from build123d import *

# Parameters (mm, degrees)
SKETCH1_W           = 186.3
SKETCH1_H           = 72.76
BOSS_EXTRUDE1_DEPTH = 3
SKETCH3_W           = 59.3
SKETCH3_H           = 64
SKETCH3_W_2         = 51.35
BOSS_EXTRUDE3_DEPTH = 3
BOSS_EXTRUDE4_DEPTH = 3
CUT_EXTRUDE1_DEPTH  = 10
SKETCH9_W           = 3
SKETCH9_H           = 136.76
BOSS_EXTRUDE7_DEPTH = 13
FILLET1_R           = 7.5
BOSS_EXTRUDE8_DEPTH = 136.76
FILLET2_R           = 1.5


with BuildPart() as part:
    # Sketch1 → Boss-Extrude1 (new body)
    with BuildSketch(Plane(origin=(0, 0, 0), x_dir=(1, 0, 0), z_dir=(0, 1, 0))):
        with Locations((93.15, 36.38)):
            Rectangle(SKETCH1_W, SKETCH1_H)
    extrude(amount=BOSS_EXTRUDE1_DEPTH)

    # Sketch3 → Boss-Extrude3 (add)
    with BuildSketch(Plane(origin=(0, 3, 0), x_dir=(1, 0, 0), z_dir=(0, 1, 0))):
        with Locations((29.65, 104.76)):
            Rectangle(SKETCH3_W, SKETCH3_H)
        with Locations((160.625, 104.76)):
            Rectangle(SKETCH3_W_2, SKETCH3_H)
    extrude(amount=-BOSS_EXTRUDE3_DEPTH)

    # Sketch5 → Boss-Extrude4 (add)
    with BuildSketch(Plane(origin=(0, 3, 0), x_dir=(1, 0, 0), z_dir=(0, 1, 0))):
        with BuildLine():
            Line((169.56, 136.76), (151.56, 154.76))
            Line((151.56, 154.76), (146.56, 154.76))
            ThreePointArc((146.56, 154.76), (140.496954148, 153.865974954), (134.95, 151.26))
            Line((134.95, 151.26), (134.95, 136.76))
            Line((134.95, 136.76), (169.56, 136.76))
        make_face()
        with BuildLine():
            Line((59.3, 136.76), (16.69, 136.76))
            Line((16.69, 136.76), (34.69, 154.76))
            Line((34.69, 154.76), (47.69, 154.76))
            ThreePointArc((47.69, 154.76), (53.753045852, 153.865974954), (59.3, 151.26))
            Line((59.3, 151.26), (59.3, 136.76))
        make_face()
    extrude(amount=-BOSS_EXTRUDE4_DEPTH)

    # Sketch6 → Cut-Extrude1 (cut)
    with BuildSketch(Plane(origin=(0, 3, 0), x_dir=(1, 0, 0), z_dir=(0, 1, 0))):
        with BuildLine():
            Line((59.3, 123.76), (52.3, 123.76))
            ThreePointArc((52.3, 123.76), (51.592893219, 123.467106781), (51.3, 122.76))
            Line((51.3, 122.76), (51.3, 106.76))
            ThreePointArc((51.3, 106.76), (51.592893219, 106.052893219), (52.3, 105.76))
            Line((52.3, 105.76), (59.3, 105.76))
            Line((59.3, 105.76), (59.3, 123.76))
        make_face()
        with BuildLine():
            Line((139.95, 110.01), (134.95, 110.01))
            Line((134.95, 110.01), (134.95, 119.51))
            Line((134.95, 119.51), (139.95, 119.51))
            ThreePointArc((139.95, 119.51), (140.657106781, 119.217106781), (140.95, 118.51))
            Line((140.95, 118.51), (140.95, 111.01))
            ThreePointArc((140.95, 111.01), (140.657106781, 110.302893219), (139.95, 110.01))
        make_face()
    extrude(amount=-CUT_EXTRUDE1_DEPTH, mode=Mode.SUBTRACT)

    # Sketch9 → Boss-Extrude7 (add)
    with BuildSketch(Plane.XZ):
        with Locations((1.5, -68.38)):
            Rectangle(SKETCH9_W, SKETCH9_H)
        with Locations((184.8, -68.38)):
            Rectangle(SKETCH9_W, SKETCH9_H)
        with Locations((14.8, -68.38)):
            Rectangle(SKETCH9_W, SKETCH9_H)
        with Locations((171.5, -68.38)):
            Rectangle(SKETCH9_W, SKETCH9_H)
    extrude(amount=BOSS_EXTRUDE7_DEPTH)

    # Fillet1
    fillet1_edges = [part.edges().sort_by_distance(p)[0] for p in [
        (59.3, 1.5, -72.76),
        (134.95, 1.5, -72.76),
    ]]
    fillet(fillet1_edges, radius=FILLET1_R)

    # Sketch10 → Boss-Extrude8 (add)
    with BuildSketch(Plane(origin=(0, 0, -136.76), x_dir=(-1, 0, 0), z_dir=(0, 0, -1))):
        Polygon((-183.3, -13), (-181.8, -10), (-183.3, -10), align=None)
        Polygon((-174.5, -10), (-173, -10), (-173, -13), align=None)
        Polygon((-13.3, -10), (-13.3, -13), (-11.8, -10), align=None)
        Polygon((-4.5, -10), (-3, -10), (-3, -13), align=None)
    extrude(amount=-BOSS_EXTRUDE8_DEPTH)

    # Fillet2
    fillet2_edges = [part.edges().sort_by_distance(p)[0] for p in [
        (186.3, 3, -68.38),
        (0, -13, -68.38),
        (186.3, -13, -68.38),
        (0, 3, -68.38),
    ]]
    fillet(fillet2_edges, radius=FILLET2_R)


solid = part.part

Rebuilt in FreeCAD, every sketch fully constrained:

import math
import FreeCAD as App
import Part
import Sketcher

V = App.Vector
Q = App.Units.Quantity


def edges_at(feature, points):
    """Names of the edges that pass closest to the given points."""
    edges = feature.Shape.Edges
    near = lambda p: min(range(len(edges)), key=lambda i: edges[i].distToShape(Part.Vertex(*p))[0])
    return sorted({f"Edge{near(p) + 1}" for p in points})

doc = App.newDocument("Part")
body = doc.addObject("PartDesign::Body", "Body")

# Sketch on XZ plane
sketch1 = body.newObject("Sketcher::SketchObject", "Sketch")
sketch1.AttachmentSupport = (doc.getObject("XZ_Plane"), [""])
sketch1.MapMode = "FlatFace"
sketch1.addGeometry(Part.LineSegment(V(0, -72.76, 0), V(0, 0, 0)), False)
sketch1.addGeometry(Part.LineSegment(V(0, 0, 0), V(186.3, 0, 0)), False)
sketch1.addGeometry(Part.LineSegment(V(186.3, 0, 0), V(186.3, -72.76, 0)), False)
sketch1.addGeometry(Part.LineSegment(V(186.3, -72.76, 0), V(0, -72.76, 0)), False)
sketch1.addConstraint(Sketcher.Constraint("Coincident", 0, 2, 1, 1))
sketch1.addConstraint(Sketcher.Constraint("Coincident", 1, 2, 2, 1))
sketch1.addConstraint(Sketcher.Constraint("Coincident", 2, 2, 3, 1))
sketch1.addConstraint(Sketcher.Constraint("Coincident", 3, 2, 0, 1))
sketch1.addConstraint(Sketcher.Constraint("Vertical", 0))
sketch1.addConstraint(Sketcher.Constraint("Horizontal", 1))
sketch1.addConstraint(Sketcher.Constraint("Vertical", 2))
sketch1.addConstraint(Sketcher.Constraint("Horizontal", 3))
sketch1.addConstraint(Sketcher.Constraint("Coincident", 0, 2, -1, 1))
sketch1.addConstraint(Sketcher.Constraint("DistanceX", 1, 1, 1, 2, Q("186.3 mm")))
sketch1.addConstraint(Sketcher.Constraint("DistanceY", 0, 1, 0, 2, Q("72.76 mm")))
pad1 = body.newObject("PartDesign::Pad", "Pad")
pad1.Profile = sketch1
pad1.Length = 3
pad1.Reversed = True

# Sketch on XZ plane
sketch2 = body.newObject("Sketcher::SketchObject", "Sketch001")
sketch2.AttachmentSupport = (doc.getObject("XZ_Plane"), [""])
sketch2.MapMode = "FlatFace"
sketch2.AttachmentOffset = App.Placement(V(0, 0, -3), App.Rotation())
sketch2.addGeometry(Part.LineSegment(V(0, -136.76, 0), V(0, -72.76, 0)), False)
sketch2.addGeometry(Part.LineSegment(V(0, -72.76, 0), V(59.3, -72.76, 0)), False)
sketch2.addGeometry(Part.LineSegment(V(59.3, -72.76, 0), V(59.3, -136.76, 0)), False)
sketch2.addGeometry(Part.LineSegment(V(59.3, -136.76, 0), V(0, -136.76, 0)), False)
sketch2.addGeometry(Part.LineSegment(V(134.95, -136.76, 0), V(134.95, -72.76, 0)), False)
sketch2.addGeometry(Part.LineSegment(V(134.95, -72.76, 0), V(186.3, -72.76, 0)), False)
sketch2.addGeometry(Part.LineSegment(V(186.3, -72.76, 0), V(186.3, -136.76, 0)), False)
sketch2.addGeometry(Part.LineSegment(V(186.3, -136.76, 0), V(134.95, -136.76, 0)), False)
sketch2.addConstraint(Sketcher.Constraint("Coincident", 0, 2, 1, 1))
sketch2.addConstraint(Sketcher.Constraint("Coincident", 1, 2, 2, 1))
sketch2.addConstraint(Sketcher.Constraint("Coincident", 2, 2, 3, 1))
sketch2.addConstraint(Sketcher.Constraint("Coincident", 3, 2, 0, 1))
sketch2.addConstraint(Sketcher.Constraint("Coincident", 4, 2, 5, 1))
sketch2.addConstraint(Sketcher.Constraint("Coincident", 5, 2, 6, 1))
sketch2.addConstraint(Sketcher.Constraint("Coincident", 6, 2, 7, 1))
sketch2.addConstraint(Sketcher.Constraint("Coincident", 7, 2, 4, 1))
sketch2.addConstraint(Sketcher.Constraint("Vertical", 0))
sketch2.addConstraint(Sketcher.Constraint("Horizontal", 1))
sketch2.addConstraint(Sketcher.Constraint("Vertical", 2))
sketch2.addConstraint(Sketcher.Constraint("Horizontal", 3))
sketch2.addConstraint(Sketcher.Constraint("Vertical", 4))
sketch2.addConstraint(Sketcher.Constraint("Horizontal", 5))
sketch2.addConstraint(Sketcher.Constraint("Vertical", 6))
sketch2.addConstraint(Sketcher.Constraint("Horizontal", 7))
sketch2.addConstraint(Sketcher.Constraint("PointOnObject", 0, 2, -2))
sketch2.addConstraint(Sketcher.Constraint("Horizontal", 1, 2, 4, 2))
sketch2.addConstraint(Sketcher.Constraint("Horizontal", 3, 2, 6, 2))
sketch2.addConstraint(Sketcher.Constraint("DistanceY", 0, 1, 0, 2, Q("64 mm")))
sketch2.addConstraint(Sketcher.Constraint("DistanceX", 1, 1, 1, 2, Q("59.3 mm")))
sketch2.addConstraint(Sketcher.Constraint("DistanceX", 1, 2, 5, 2, Q("127 mm")))
sketch2.addConstraint(Sketcher.Constraint("DistanceX", 5, 1, 5, 2, Q("51.35 mm")))
sketch2.addConstraint(Sketcher.Constraint("DistanceY", 0, 2, -1, 1, Q("72.76 mm")))
pad2 = body.newObject("PartDesign::Pad", "Pad001")
pad2.Profile = sketch2
pad2.Length = 3

# Sketch on XZ plane
sketch3 = body.newObject("Sketcher::SketchObject", "Sketch002")
sketch3.AttachmentSupport = (doc.getObject("XZ_Plane"), [""])
sketch3.MapMode = "FlatFace"
sketch3.AttachmentOffset = App.Placement(V(0, 0, -3), App.Rotation())
sketch3.addGeometry(Part.LineSegment(V(169.56, -136.76, 0), V(151.56, -154.76, 0)), False)
sketch3.addGeometry(Part.LineSegment(V(151.56, -154.76, 0), V(146.56, -154.76, 0)), False)
sketch3.addGeometry(Part.ArcOfCircle(Part.Circle(V(146.56, -133.753986, 0), V(0, 0, 1), 21.006014), math.radians(-123.552363), math.radians(-90)), False)
sketch3.addGeometry(Part.LineSegment(V(134.95, -151.26, 0), V(134.95, -136.76, 0)), False)
sketch3.addGeometry(Part.LineSegment(V(134.95, -136.76, 0), V(169.56, -136.76, 0)), False)
sketch3.addGeometry(Part.LineSegment(V(16.69, -136.76, 0), V(59.3, -136.76, 0)), False)
sketch3.addGeometry(Part.LineSegment(V(59.3, -136.76, 0), V(59.3, -151.26, 0)), False)
sketch3.addGeometry(Part.ArcOfCircle(Part.Circle(V(47.69, -133.753986, 0), V(0, 0, 1), 21.006014), math.radians(-90), math.radians(-56.447637)), False)
sketch3.addGeometry(Part.LineSegment(V(47.69, -154.76, 0), V(34.69, -154.76, 0)), False)
sketch3.addGeometry(Part.LineSegment(V(34.69, -154.76, 0), V(16.69, -136.76, 0)), False)
sketch3.addConstraint(Sketcher.Constraint("Coincident", 0, 2, 1, 1))
sketch3.addConstraint(Sketcher.Constraint("Tangent", 1, 2, 2, 2))
sketch3.addConstraint(Sketcher.Constraint("Coincident", 2, 1, 3, 1))
sketch3.addConstraint(Sketcher.Constraint("Coincident", 3, 2, 4, 1))
sketch3.addConstraint(Sketcher.Constraint("Coincident", 4, 2, 0, 1))
sketch3.addConstraint(Sketcher.Constraint("Coincident", 5, 2, 6, 1))
sketch3.addConstraint(Sketcher.Constraint("Coincident", 6, 2, 7, 2))
sketch3.addConstraint(Sketcher.Constraint("Tangent", 7, 1, 8, 1))
sketch3.addConstraint(Sketcher.Constraint("Coincident", 8, 2, 9, 1))
sketch3.addConstraint(Sketcher.Constraint("Coincident", 9, 2, 5, 1))
sketch3.addConstraint(Sketcher.Constraint("Horizontal", 1))
sketch3.addConstraint(Sketcher.Constraint("Vertical", 3))
sketch3.addConstraint(Sketcher.Constraint("Horizontal", 4))
sketch3.addConstraint(Sketcher.Constraint("Horizontal", 5))
sketch3.addConstraint(Sketcher.Constraint("Vertical", 6))
sketch3.addConstraint(Sketcher.Constraint("Horizontal", 8))
sketch3.addConstraint(Sketcher.Constraint("Equal", 2, 7))
sketch3.addConstraint(Sketcher.Constraint("Perpendicular", 0, 9))
sketch3.addConstraint(Sketcher.Constraint("Horizontal", 2, 3, 7, 3))
sketch3.addConstraint(Sketcher.Constraint("Horizontal", 4, 2, 5, 2))
sketch3.addConstraint(Sketcher.Constraint("Horizontal", 2, 1, 6, 2))
sketch3.addConstraint(Sketcher.Constraint("Equal", 0, 9))
sketch3.addConstraint(Sketcher.Constraint("DistanceX", 1, 2, 1, 1, Q("5 mm")))
sketch3.addConstraint(Sketcher.Constraint("DistanceX", 8, 2, 8, 1, Q("13 mm")))
sketch3.addConstraint(Sketcher.Constraint("DistanceY", 3, 1, 3, 2, Q("14.5 mm")))
sketch3.addConstraint(Sketcher.Constraint("DistanceY", 1, 2, 3, 2, Q("18 mm")))
sketch3.addConstraint(Sketcher.Constraint("DistanceX", 4, 1, 4, 2, Q("34.61 mm")))
sketch3.addConstraint(Sketcher.Constraint("DistanceX", -1, 1, 5, 2, Q("59.3 mm")))
sketch3.addConstraint(Sketcher.Constraint("DistanceX", -1, 1, 2, 3, Q("146.56 mm")))
sketch3.addConstraint(Sketcher.Constraint("DistanceY", 0, 2, -1, 1, Q("154.76 mm")))
pad3 = body.newObject("PartDesign::Pad", "Pad002")
pad3.Profile = sketch3
pad3.Length = 3

# Sketch on XZ plane
sketch4 = body.newObject("Sketcher::SketchObject", "Sketch003")
sketch4.AttachmentSupport = (doc.getObject("XZ_Plane"), [""])
sketch4.MapMode = "FlatFace"
sketch4.AttachmentOffset = App.Placement(V(0, 0, -3), App.Rotation())
sketch4.addGeometry(Part.LineSegment(V(59.3, -123.76, 0), V(52.3, -123.76, 0)), False)
sketch4.addGeometry(Part.ArcOfCircle(Part.Circle(V(52.3, -122.76, 0), V(0, 0, 1), 1), math.radians(-180), math.radians(-90)), False)
sketch4.addGeometry(Part.LineSegment(V(51.3, -122.76, 0), V(51.3, -106.76, 0)), False)
sketch4.addGeometry(Part.ArcOfCircle(Part.Circle(V(52.3, -106.76, 0), V(0, 0, 1), 1), math.radians(90), math.radians(180)), False)
sketch4.addGeometry(Part.LineSegment(V(52.3, -105.76, 0), V(59.3, -105.76, 0)), False)
sketch4.addGeometry(Part.LineSegment(V(59.3, -105.76, 0), V(59.3, -123.76, 0)), False)
sketch4.addGeometry(Part.LineSegment(V(134.95, -110.01, 0), V(139.95, -110.01, 0)), False)
sketch4.addGeometry(Part.ArcOfCircle(Part.Circle(V(139.95, -111.01, 0), V(0, 0, 1), 1), math.radians(0), math.radians(90)), False)
sketch4.addGeometry(Part.LineSegment(V(140.95, -111.01, 0), V(140.95, -118.51, 0)), False)
sketch4.addGeometry(Part.ArcOfCircle(Part.Circle(V(139.95, -118.51, 0), V(0, 0, 1), 1), math.radians(-90), math.radians(0)), False)
sketch4.addGeometry(Part.LineSegment(V(139.95, -119.51, 0), V(134.95, -119.51, 0)), False)
sketch4.addGeometry(Part.LineSegment(V(134.95, -119.51, 0), V(134.95, -110.01, 0)), False)
sketch4.addConstraint(Sketcher.Constraint("Tangent", 0, 2, 1, 2))
sketch4.addConstraint(Sketcher.Constraint("Tangent", 1, 1, 2, 1))
sketch4.addConstraint(Sketcher.Constraint("Tangent", 2, 2, 3, 2))
sketch4.addConstraint(Sketcher.Constraint("Tangent", 3, 1, 4, 1))
sketch4.addConstraint(Sketcher.Constraint("Coincident", 4, 2, 5, 1))
sketch4.addConstraint(Sketcher.Constraint("Coincident", 5, 2, 0, 1))
sketch4.addConstraint(Sketcher.Constraint("Tangent", 6, 2, 7, 2))
sketch4.addConstraint(Sketcher.Constraint("Tangent", 7, 1, 8, 1))
sketch4.addConstraint(Sketcher.Constraint("Tangent", 8, 2, 9, 2))
sketch4.addConstraint(Sketcher.Constraint("Tangent", 9, 1, 10, 1))
sketch4.addConstraint(Sketcher.Constraint("Coincident", 10, 2, 11, 1))
sketch4.addConstraint(Sketcher.Constraint("Coincident", 11, 2, 6, 1))
sketch4.addConstraint(Sketcher.Constraint("Horizontal", 0))
sketch4.addConstraint(Sketcher.Constraint("Vertical", 2))
sketch4.addConstraint(Sketcher.Constraint("Horizontal", 4))
sketch4.addConstraint(Sketcher.Constraint("Vertical", 5))
sketch4.addConstraint(Sketcher.Constraint("Horizontal", 6))
sketch4.addConstraint(Sketcher.Constraint("Vertical", 8))
sketch4.addConstraint(Sketcher.Constraint("Horizontal", 10))
sketch4.addConstraint(Sketcher.Constraint("Vertical", 11))
sketch4.addConstraint(Sketcher.Constraint("Equal", 1, 3))
sketch4.addConstraint(Sketcher.Constraint("Equal", 3, 7))
sketch4.addConstraint(Sketcher.Constraint("Equal", 7, 9))
sketch4.addConstraint(Sketcher.Constraint("Radius", 1, Q("1 mm")))
sketch4.addConstraint(Sketcher.Constraint("DistanceX", 0, 2, 0, 1, Q("7 mm")))
sketch4.addConstraint(Sketcher.Constraint("DistanceX", 6, 1, 6, 2, Q("5 mm")))
sketch4.addConstraint(Sketcher.Constraint("DistanceY", 2, 1, 2, 2, Q("16 mm")))
sketch4.addConstraint(Sketcher.Constraint("DistanceY", 8, 2, 8, 1, Q("7.5 mm")))
sketch4.addConstraint(Sketcher.Constraint("DistanceX", -1, 1, 1, 3, Q("52.3 mm")))
sketch4.addConstraint(Sketcher.Constraint("DistanceY", 1, 3, -1, 1, Q("122.76 mm")))
sketch4.addConstraint(Sketcher.Constraint("DistanceX", -1, 1, 7, 3, Q("139.95 mm")))
sketch4.addConstraint(Sketcher.Constraint("DistanceY", 7, 3, -1, 1, Q("111.01 mm")))
pocket1 = body.newObject("PartDesign::Pocket", "Pocket")
pocket1.Profile = sketch4
pocket1.Length = 10
pocket1.Reversed = True

# Sketch on XZ plane
sketch5 = body.newObject("Sketcher::SketchObject", "Sketch004")
sketch5.AttachmentSupport = (doc.getObject("XZ_Plane"), [""])
sketch5.MapMode = "FlatFace"
sketch5.addGeometry(Part.LineSegment(V(0, 0, 0), V(0, -136.76, 0)), False)
sketch5.addGeometry(Part.LineSegment(V(0, -136.76, 0), V(3, -136.76, 0)), False)
sketch5.addGeometry(Part.LineSegment(V(3, -136.76, 0), V(3, 0, 0)), False)
sketch5.addGeometry(Part.LineSegment(V(3, 0, 0), V(0, 0, 0)), False)
sketch5.addGeometry(Part.LineSegment(V(183.3, 0, 0), V(183.3, -136.76, 0)), False)
sketch5.addGeometry(Part.LineSegment(V(183.3, -136.76, 0), V(186.3, -136.76, 0)), False)
sketch5.addGeometry(Part.LineSegment(V(186.3, -136.76, 0), V(186.3, 0, 0)), False)
sketch5.addGeometry(Part.LineSegment(V(186.3, 0, 0), V(183.3, 0, 0)), False)
sketch5.addGeometry(Part.LineSegment(V(13.3, 0, 0), V(13.3, -136.76, 0)), False)
sketch5.addGeometry(Part.LineSegment(V(13.3, -136.76, 0), V(16.3, -136.76, 0)), False)
sketch5.addGeometry(Part.LineSegment(V(16.3, -136.76, 0), V(16.3, 0, 0)), False)
sketch5.addGeometry(Part.LineSegment(V(16.3, 0, 0), V(13.3, 0, 0)), False)
sketch5.addGeometry(Part.LineSegment(V(170, 0, 0), V(170, -136.76, 0)), False)
sketch5.addGeometry(Part.LineSegment(V(170, -136.76, 0), V(173, -136.76, 0)), False)
sketch5.addGeometry(Part.LineSegment(V(173, -136.76, 0), V(173, 0, 0)), False)
sketch5.addGeometry(Part.LineSegment(V(173, 0, 0), V(170, 0, 0)), False)
sketch5.addConstraint(Sketcher.Constraint("Coincident", 0, 2, 1, 1))
sketch5.addConstraint(Sketcher.Constraint("Coincident", 1, 2, 2, 1))
sketch5.addConstraint(Sketcher.Constraint("Coincident", 2, 2, 3, 1))
sketch5.addConstraint(Sketcher.Constraint("Coincident", 3, 2, 0, 1))
sketch5.addConstraint(Sketcher.Constraint("Coincident", 4, 2, 5, 1))
sketch5.addConstraint(Sketcher.Constraint("Coincident", 5, 2, 6, 1))
sketch5.addConstraint(Sketcher.Constraint("Coincident", 6, 2, 7, 1))
sketch5.addConstraint(Sketcher.Constraint("Coincident", 7, 2, 4, 1))
sketch5.addConstraint(Sketcher.Constraint("Coincident", 8, 2, 9, 1))
sketch5.addConstraint(Sketcher.Constraint("Coincident", 9, 2, 10, 1))
sketch5.addConstraint(Sketcher.Constraint("Coincident", 10, 2, 11, 1))
sketch5.addConstraint(Sketcher.Constraint("Coincident", 11, 2, 8, 1))
sketch5.addConstraint(Sketcher.Constraint("Coincident", 12, 2, 13, 1))
sketch5.addConstraint(Sketcher.Constraint("Coincident", 13, 2, 14, 1))
sketch5.addConstraint(Sketcher.Constraint("Coincident", 14, 2, 15, 1))
sketch5.addConstraint(Sketcher.Constraint("Coincident", 15, 2, 12, 1))
sketch5.addConstraint(Sketcher.Constraint("Vertical", 0))
sketch5.addConstraint(Sketcher.Constraint("Horizontal", 1))
sketch5.addConstraint(Sketcher.Constraint("Vertical", 2))
sketch5.addConstraint(Sketcher.Constraint("Horizontal", 3))
sketch5.addConstraint(Sketcher.Constraint("Vertical", 4))
sketch5.addConstraint(Sketcher.Constraint("Horizontal", 5))
sketch5.addConstraint(Sketcher.Constraint("Vertical", 6))
sketch5.addConstraint(Sketcher.Constraint("Horizontal", 7))
sketch5.addConstraint(Sketcher.Constraint("Vertical", 8))
sketch5.addConstraint(Sketcher.Constraint("Horizontal", 9))
sketch5.addConstraint(Sketcher.Constraint("Vertical", 10))
sketch5.addConstraint(Sketcher.Constraint("Horizontal", 11))
sketch5.addConstraint(Sketcher.Constraint("Vertical", 12))
sketch5.addConstraint(Sketcher.Constraint("Horizontal", 13))
sketch5.addConstraint(Sketcher.Constraint("Vertical", 14))
sketch5.addConstraint(Sketcher.Constraint("Horizontal", 15))
sketch5.addConstraint(Sketcher.Constraint("Coincident", 3, 2, -1, 1))
sketch5.addConstraint(Sketcher.Constraint("PointOnObject", 6, 2, -1))
sketch5.addConstraint(Sketcher.Constraint("PointOnObject", 10, 2, -1))
sketch5.addConstraint(Sketcher.Constraint("PointOnObject", 14, 2, -1))
sketch5.addConstraint(Sketcher.Constraint("Horizontal", 1, 2, 4, 2))
sketch5.addConstraint(Sketcher.Constraint("Horizontal", 5, 2, 8, 2))
sketch5.addConstraint(Sketcher.Constraint("Horizontal", 9, 2, 12, 2))
sketch5.addConstraint(Sketcher.Constraint("Equal", 3, 5))
sketch5.addConstraint(Sketcher.Constraint("Equal", 7, 9))
sketch5.addConstraint(Sketcher.Constraint("Equal", 11, 13))
sketch5.addConstraint(Sketcher.Constraint("DistanceX", 1, 1, 1, 2, Q("3 mm")))
sketch5.addConstraint(Sketcher.Constraint("DistanceX", -1, 1, 12, 2, Q("170 mm")))
sketch5.addConstraint(Sketcher.Constraint("DistanceX", 8, 2, 4, 2, Q("170 mm")))
sketch5.addConstraint(Sketcher.Constraint("DistanceY", 0, 2, 0, 1, Q("136.76 mm")))
sketch5.addConstraint(Sketcher.Constraint("DistanceX", -1, 1, 4, 2, Q("183.3 mm")))
pad4 = body.newObject("PartDesign::Pad", "Pad003")
pad4.Profile = sketch5
pad4.Length = 13
doc.recompute()

fillet = body.newObject("PartDesign::Fillet", "Fillet")
fillet.Base = (pad4, edges_at(pad4, [(59.3, 1.5, -72.76), (134.95, 1.5, -72.76)]))
fillet.Radius = 7.5

# Sketch on XY plane
sketch6 = body.newObject("Sketcher::SketchObject", "Sketch005")
sketch6.AttachmentSupport = (doc.getObject("XY_Plane"), [""])
sketch6.MapMode = "FlatFace"
sketch6.AttachmentOffset = App.Placement(V(0, 0, -136.76), App.Rotation())
sketch6.addGeometry(Part.LineSegment(V(183.3, -13, 0), V(181.8, -10, 0)), False)
sketch6.addGeometry(Part.LineSegment(V(181.8, -10, 0), V(183.3, -10, 0)), False)
sketch6.addGeometry(Part.LineSegment(V(183.3, -10, 0), V(183.3, -13, 0)), False)
sketch6.addGeometry(Part.LineSegment(V(173, -10, 0), V(174.5, -10, 0)), False)
sketch6.addGeometry(Part.LineSegment(V(174.5, -10, 0), V(173, -13, 0)), False)
sketch6.addGeometry(Part.LineSegment(V(173, -13, 0), V(173, -10, 0)), False)
sketch6.addGeometry(Part.LineSegment(V(13.3, -10, 0), V(13.3, -13, 0)), False)
sketch6.addGeometry(Part.LineSegment(V(13.3, -13, 0), V(11.8, -10, 0)), False)
sketch6.addGeometry(Part.LineSegment(V(11.8, -10, 0), V(13.3, -10, 0)), False)
sketch6.addGeometry(Part.LineSegment(V(3, -10, 0), V(4.5, -10, 0)), False)
sketch6.addGeometry(Part.LineSegment(V(4.5, -10, 0), V(3, -13, 0)), False)
sketch6.addGeometry(Part.LineSegment(V(3, -13, 0), V(3, -10, 0)), False)
sketch6.addConstraint(Sketcher.Constraint("Coincident", 0, 2, 1, 1))
sketch6.addConstraint(Sketcher.Constraint("Coincident", 1, 2, 2, 1))
sketch6.addConstraint(Sketcher.Constraint("Coincident", 2, 2, 0, 1))
sketch6.addConstraint(Sketcher.Constraint("Coincident", 3, 2, 4, 1))
sketch6.addConstraint(Sketcher.Constraint("Coincident", 4, 2, 5, 1))
sketch6.addConstraint(Sketcher.Constraint("Coincident", 5, 2, 3, 1))
sketch6.addConstraint(Sketcher.Constraint("Coincident", 6, 2, 7, 1))
sketch6.addConstraint(Sketcher.Constraint("Coincident", 7, 2, 8, 1))
sketch6.addConstraint(Sketcher.Constraint("Coincident", 8, 2, 6, 1))
sketch6.addConstraint(Sketcher.Constraint("Coincident", 9, 2, 10, 1))
sketch6.addConstraint(Sketcher.Constraint("Coincident", 10, 2, 11, 1))
sketch6.addConstraint(Sketcher.Constraint("Coincident", 11, 2, 9, 1))
sketch6.addConstraint(Sketcher.Constraint("Horizontal", 1))
sketch6.addConstraint(Sketcher.Constraint("Vertical", 2))
sketch6.addConstraint(Sketcher.Constraint("Horizontal", 3))
sketch6.addConstraint(Sketcher.Constraint("Vertical", 5))
sketch6.addConstraint(Sketcher.Constraint("Vertical", 6))
sketch6.addConstraint(Sketcher.Constraint("Horizontal", 8))
sketch6.addConstraint(Sketcher.Constraint("Horizontal", 9))
sketch6.addConstraint(Sketcher.Constraint("Vertical", 11))
sketch6.addConstraint(Sketcher.Constraint("Parallel", 0, 7))
sketch6.addConstraint(Sketcher.Constraint("Parallel", 4, 10))
sketch6.addConstraint(Sketcher.Constraint("Horizontal", 1, 2, 3, 2))
sketch6.addConstraint(Sketcher.Constraint("Horizontal", 2, 2, 4, 2))
sketch6.addConstraint(Sketcher.Constraint("Horizontal", 4, 2, 6, 2))
sketch6.addConstraint(Sketcher.Constraint("Horizontal", 5, 2, 7, 2))
sketch6.addConstraint(Sketcher.Constraint("Horizontal", 8, 2, 9, 2))
sketch6.addConstraint(Sketcher.Constraint("Horizontal", 6, 2, 10, 2))
sketch6.addConstraint(Sketcher.Constraint("Equal", 1, 3))
sketch6.addConstraint(Sketcher.Constraint("DistanceY", 2, 2, 2, 1, Q("3 mm")))
sketch6.addConstraint(Sketcher.Constraint("DistanceX", 1, 1, 1, 2, Q("1.5 mm")))
sketch6.addConstraint(Sketcher.Constraint("DistanceY", 0, 2, -1, 1, Q("10 mm")))
sketch6.addConstraint(Sketcher.Constraint("DistanceX", -1, 1, 4, 2, Q("173 mm")))
sketch6.addConstraint(Sketcher.Constraint("DistanceX", -1, 1, 10, 2, Q("3 mm")))
sketch6.addConstraint(Sketcher.Constraint("DistanceX", 6, 2, 2, 2, Q("170 mm")))
sketch6.addConstraint(Sketcher.Constraint("DistanceX", -1, 1, 0, 2, Q("181.8 mm")))
pad5 = body.newObject("PartDesign::Pad", "Pad004")
pad5.Profile = sketch6
pad5.Length = 136.76
doc.recompute()

fillet2 = body.newObject("PartDesign::Fillet", "Fillet001")
fillet2.Base = (pad5, edges_at(pad5, [
    (186.3, 3, -68.38),
    (0, -13, -68.38),
    (186.3, -13, -68.38),
    (0, 3, -68.38),
]))
fillet2.Radius = 1.5

doc.recompute()
